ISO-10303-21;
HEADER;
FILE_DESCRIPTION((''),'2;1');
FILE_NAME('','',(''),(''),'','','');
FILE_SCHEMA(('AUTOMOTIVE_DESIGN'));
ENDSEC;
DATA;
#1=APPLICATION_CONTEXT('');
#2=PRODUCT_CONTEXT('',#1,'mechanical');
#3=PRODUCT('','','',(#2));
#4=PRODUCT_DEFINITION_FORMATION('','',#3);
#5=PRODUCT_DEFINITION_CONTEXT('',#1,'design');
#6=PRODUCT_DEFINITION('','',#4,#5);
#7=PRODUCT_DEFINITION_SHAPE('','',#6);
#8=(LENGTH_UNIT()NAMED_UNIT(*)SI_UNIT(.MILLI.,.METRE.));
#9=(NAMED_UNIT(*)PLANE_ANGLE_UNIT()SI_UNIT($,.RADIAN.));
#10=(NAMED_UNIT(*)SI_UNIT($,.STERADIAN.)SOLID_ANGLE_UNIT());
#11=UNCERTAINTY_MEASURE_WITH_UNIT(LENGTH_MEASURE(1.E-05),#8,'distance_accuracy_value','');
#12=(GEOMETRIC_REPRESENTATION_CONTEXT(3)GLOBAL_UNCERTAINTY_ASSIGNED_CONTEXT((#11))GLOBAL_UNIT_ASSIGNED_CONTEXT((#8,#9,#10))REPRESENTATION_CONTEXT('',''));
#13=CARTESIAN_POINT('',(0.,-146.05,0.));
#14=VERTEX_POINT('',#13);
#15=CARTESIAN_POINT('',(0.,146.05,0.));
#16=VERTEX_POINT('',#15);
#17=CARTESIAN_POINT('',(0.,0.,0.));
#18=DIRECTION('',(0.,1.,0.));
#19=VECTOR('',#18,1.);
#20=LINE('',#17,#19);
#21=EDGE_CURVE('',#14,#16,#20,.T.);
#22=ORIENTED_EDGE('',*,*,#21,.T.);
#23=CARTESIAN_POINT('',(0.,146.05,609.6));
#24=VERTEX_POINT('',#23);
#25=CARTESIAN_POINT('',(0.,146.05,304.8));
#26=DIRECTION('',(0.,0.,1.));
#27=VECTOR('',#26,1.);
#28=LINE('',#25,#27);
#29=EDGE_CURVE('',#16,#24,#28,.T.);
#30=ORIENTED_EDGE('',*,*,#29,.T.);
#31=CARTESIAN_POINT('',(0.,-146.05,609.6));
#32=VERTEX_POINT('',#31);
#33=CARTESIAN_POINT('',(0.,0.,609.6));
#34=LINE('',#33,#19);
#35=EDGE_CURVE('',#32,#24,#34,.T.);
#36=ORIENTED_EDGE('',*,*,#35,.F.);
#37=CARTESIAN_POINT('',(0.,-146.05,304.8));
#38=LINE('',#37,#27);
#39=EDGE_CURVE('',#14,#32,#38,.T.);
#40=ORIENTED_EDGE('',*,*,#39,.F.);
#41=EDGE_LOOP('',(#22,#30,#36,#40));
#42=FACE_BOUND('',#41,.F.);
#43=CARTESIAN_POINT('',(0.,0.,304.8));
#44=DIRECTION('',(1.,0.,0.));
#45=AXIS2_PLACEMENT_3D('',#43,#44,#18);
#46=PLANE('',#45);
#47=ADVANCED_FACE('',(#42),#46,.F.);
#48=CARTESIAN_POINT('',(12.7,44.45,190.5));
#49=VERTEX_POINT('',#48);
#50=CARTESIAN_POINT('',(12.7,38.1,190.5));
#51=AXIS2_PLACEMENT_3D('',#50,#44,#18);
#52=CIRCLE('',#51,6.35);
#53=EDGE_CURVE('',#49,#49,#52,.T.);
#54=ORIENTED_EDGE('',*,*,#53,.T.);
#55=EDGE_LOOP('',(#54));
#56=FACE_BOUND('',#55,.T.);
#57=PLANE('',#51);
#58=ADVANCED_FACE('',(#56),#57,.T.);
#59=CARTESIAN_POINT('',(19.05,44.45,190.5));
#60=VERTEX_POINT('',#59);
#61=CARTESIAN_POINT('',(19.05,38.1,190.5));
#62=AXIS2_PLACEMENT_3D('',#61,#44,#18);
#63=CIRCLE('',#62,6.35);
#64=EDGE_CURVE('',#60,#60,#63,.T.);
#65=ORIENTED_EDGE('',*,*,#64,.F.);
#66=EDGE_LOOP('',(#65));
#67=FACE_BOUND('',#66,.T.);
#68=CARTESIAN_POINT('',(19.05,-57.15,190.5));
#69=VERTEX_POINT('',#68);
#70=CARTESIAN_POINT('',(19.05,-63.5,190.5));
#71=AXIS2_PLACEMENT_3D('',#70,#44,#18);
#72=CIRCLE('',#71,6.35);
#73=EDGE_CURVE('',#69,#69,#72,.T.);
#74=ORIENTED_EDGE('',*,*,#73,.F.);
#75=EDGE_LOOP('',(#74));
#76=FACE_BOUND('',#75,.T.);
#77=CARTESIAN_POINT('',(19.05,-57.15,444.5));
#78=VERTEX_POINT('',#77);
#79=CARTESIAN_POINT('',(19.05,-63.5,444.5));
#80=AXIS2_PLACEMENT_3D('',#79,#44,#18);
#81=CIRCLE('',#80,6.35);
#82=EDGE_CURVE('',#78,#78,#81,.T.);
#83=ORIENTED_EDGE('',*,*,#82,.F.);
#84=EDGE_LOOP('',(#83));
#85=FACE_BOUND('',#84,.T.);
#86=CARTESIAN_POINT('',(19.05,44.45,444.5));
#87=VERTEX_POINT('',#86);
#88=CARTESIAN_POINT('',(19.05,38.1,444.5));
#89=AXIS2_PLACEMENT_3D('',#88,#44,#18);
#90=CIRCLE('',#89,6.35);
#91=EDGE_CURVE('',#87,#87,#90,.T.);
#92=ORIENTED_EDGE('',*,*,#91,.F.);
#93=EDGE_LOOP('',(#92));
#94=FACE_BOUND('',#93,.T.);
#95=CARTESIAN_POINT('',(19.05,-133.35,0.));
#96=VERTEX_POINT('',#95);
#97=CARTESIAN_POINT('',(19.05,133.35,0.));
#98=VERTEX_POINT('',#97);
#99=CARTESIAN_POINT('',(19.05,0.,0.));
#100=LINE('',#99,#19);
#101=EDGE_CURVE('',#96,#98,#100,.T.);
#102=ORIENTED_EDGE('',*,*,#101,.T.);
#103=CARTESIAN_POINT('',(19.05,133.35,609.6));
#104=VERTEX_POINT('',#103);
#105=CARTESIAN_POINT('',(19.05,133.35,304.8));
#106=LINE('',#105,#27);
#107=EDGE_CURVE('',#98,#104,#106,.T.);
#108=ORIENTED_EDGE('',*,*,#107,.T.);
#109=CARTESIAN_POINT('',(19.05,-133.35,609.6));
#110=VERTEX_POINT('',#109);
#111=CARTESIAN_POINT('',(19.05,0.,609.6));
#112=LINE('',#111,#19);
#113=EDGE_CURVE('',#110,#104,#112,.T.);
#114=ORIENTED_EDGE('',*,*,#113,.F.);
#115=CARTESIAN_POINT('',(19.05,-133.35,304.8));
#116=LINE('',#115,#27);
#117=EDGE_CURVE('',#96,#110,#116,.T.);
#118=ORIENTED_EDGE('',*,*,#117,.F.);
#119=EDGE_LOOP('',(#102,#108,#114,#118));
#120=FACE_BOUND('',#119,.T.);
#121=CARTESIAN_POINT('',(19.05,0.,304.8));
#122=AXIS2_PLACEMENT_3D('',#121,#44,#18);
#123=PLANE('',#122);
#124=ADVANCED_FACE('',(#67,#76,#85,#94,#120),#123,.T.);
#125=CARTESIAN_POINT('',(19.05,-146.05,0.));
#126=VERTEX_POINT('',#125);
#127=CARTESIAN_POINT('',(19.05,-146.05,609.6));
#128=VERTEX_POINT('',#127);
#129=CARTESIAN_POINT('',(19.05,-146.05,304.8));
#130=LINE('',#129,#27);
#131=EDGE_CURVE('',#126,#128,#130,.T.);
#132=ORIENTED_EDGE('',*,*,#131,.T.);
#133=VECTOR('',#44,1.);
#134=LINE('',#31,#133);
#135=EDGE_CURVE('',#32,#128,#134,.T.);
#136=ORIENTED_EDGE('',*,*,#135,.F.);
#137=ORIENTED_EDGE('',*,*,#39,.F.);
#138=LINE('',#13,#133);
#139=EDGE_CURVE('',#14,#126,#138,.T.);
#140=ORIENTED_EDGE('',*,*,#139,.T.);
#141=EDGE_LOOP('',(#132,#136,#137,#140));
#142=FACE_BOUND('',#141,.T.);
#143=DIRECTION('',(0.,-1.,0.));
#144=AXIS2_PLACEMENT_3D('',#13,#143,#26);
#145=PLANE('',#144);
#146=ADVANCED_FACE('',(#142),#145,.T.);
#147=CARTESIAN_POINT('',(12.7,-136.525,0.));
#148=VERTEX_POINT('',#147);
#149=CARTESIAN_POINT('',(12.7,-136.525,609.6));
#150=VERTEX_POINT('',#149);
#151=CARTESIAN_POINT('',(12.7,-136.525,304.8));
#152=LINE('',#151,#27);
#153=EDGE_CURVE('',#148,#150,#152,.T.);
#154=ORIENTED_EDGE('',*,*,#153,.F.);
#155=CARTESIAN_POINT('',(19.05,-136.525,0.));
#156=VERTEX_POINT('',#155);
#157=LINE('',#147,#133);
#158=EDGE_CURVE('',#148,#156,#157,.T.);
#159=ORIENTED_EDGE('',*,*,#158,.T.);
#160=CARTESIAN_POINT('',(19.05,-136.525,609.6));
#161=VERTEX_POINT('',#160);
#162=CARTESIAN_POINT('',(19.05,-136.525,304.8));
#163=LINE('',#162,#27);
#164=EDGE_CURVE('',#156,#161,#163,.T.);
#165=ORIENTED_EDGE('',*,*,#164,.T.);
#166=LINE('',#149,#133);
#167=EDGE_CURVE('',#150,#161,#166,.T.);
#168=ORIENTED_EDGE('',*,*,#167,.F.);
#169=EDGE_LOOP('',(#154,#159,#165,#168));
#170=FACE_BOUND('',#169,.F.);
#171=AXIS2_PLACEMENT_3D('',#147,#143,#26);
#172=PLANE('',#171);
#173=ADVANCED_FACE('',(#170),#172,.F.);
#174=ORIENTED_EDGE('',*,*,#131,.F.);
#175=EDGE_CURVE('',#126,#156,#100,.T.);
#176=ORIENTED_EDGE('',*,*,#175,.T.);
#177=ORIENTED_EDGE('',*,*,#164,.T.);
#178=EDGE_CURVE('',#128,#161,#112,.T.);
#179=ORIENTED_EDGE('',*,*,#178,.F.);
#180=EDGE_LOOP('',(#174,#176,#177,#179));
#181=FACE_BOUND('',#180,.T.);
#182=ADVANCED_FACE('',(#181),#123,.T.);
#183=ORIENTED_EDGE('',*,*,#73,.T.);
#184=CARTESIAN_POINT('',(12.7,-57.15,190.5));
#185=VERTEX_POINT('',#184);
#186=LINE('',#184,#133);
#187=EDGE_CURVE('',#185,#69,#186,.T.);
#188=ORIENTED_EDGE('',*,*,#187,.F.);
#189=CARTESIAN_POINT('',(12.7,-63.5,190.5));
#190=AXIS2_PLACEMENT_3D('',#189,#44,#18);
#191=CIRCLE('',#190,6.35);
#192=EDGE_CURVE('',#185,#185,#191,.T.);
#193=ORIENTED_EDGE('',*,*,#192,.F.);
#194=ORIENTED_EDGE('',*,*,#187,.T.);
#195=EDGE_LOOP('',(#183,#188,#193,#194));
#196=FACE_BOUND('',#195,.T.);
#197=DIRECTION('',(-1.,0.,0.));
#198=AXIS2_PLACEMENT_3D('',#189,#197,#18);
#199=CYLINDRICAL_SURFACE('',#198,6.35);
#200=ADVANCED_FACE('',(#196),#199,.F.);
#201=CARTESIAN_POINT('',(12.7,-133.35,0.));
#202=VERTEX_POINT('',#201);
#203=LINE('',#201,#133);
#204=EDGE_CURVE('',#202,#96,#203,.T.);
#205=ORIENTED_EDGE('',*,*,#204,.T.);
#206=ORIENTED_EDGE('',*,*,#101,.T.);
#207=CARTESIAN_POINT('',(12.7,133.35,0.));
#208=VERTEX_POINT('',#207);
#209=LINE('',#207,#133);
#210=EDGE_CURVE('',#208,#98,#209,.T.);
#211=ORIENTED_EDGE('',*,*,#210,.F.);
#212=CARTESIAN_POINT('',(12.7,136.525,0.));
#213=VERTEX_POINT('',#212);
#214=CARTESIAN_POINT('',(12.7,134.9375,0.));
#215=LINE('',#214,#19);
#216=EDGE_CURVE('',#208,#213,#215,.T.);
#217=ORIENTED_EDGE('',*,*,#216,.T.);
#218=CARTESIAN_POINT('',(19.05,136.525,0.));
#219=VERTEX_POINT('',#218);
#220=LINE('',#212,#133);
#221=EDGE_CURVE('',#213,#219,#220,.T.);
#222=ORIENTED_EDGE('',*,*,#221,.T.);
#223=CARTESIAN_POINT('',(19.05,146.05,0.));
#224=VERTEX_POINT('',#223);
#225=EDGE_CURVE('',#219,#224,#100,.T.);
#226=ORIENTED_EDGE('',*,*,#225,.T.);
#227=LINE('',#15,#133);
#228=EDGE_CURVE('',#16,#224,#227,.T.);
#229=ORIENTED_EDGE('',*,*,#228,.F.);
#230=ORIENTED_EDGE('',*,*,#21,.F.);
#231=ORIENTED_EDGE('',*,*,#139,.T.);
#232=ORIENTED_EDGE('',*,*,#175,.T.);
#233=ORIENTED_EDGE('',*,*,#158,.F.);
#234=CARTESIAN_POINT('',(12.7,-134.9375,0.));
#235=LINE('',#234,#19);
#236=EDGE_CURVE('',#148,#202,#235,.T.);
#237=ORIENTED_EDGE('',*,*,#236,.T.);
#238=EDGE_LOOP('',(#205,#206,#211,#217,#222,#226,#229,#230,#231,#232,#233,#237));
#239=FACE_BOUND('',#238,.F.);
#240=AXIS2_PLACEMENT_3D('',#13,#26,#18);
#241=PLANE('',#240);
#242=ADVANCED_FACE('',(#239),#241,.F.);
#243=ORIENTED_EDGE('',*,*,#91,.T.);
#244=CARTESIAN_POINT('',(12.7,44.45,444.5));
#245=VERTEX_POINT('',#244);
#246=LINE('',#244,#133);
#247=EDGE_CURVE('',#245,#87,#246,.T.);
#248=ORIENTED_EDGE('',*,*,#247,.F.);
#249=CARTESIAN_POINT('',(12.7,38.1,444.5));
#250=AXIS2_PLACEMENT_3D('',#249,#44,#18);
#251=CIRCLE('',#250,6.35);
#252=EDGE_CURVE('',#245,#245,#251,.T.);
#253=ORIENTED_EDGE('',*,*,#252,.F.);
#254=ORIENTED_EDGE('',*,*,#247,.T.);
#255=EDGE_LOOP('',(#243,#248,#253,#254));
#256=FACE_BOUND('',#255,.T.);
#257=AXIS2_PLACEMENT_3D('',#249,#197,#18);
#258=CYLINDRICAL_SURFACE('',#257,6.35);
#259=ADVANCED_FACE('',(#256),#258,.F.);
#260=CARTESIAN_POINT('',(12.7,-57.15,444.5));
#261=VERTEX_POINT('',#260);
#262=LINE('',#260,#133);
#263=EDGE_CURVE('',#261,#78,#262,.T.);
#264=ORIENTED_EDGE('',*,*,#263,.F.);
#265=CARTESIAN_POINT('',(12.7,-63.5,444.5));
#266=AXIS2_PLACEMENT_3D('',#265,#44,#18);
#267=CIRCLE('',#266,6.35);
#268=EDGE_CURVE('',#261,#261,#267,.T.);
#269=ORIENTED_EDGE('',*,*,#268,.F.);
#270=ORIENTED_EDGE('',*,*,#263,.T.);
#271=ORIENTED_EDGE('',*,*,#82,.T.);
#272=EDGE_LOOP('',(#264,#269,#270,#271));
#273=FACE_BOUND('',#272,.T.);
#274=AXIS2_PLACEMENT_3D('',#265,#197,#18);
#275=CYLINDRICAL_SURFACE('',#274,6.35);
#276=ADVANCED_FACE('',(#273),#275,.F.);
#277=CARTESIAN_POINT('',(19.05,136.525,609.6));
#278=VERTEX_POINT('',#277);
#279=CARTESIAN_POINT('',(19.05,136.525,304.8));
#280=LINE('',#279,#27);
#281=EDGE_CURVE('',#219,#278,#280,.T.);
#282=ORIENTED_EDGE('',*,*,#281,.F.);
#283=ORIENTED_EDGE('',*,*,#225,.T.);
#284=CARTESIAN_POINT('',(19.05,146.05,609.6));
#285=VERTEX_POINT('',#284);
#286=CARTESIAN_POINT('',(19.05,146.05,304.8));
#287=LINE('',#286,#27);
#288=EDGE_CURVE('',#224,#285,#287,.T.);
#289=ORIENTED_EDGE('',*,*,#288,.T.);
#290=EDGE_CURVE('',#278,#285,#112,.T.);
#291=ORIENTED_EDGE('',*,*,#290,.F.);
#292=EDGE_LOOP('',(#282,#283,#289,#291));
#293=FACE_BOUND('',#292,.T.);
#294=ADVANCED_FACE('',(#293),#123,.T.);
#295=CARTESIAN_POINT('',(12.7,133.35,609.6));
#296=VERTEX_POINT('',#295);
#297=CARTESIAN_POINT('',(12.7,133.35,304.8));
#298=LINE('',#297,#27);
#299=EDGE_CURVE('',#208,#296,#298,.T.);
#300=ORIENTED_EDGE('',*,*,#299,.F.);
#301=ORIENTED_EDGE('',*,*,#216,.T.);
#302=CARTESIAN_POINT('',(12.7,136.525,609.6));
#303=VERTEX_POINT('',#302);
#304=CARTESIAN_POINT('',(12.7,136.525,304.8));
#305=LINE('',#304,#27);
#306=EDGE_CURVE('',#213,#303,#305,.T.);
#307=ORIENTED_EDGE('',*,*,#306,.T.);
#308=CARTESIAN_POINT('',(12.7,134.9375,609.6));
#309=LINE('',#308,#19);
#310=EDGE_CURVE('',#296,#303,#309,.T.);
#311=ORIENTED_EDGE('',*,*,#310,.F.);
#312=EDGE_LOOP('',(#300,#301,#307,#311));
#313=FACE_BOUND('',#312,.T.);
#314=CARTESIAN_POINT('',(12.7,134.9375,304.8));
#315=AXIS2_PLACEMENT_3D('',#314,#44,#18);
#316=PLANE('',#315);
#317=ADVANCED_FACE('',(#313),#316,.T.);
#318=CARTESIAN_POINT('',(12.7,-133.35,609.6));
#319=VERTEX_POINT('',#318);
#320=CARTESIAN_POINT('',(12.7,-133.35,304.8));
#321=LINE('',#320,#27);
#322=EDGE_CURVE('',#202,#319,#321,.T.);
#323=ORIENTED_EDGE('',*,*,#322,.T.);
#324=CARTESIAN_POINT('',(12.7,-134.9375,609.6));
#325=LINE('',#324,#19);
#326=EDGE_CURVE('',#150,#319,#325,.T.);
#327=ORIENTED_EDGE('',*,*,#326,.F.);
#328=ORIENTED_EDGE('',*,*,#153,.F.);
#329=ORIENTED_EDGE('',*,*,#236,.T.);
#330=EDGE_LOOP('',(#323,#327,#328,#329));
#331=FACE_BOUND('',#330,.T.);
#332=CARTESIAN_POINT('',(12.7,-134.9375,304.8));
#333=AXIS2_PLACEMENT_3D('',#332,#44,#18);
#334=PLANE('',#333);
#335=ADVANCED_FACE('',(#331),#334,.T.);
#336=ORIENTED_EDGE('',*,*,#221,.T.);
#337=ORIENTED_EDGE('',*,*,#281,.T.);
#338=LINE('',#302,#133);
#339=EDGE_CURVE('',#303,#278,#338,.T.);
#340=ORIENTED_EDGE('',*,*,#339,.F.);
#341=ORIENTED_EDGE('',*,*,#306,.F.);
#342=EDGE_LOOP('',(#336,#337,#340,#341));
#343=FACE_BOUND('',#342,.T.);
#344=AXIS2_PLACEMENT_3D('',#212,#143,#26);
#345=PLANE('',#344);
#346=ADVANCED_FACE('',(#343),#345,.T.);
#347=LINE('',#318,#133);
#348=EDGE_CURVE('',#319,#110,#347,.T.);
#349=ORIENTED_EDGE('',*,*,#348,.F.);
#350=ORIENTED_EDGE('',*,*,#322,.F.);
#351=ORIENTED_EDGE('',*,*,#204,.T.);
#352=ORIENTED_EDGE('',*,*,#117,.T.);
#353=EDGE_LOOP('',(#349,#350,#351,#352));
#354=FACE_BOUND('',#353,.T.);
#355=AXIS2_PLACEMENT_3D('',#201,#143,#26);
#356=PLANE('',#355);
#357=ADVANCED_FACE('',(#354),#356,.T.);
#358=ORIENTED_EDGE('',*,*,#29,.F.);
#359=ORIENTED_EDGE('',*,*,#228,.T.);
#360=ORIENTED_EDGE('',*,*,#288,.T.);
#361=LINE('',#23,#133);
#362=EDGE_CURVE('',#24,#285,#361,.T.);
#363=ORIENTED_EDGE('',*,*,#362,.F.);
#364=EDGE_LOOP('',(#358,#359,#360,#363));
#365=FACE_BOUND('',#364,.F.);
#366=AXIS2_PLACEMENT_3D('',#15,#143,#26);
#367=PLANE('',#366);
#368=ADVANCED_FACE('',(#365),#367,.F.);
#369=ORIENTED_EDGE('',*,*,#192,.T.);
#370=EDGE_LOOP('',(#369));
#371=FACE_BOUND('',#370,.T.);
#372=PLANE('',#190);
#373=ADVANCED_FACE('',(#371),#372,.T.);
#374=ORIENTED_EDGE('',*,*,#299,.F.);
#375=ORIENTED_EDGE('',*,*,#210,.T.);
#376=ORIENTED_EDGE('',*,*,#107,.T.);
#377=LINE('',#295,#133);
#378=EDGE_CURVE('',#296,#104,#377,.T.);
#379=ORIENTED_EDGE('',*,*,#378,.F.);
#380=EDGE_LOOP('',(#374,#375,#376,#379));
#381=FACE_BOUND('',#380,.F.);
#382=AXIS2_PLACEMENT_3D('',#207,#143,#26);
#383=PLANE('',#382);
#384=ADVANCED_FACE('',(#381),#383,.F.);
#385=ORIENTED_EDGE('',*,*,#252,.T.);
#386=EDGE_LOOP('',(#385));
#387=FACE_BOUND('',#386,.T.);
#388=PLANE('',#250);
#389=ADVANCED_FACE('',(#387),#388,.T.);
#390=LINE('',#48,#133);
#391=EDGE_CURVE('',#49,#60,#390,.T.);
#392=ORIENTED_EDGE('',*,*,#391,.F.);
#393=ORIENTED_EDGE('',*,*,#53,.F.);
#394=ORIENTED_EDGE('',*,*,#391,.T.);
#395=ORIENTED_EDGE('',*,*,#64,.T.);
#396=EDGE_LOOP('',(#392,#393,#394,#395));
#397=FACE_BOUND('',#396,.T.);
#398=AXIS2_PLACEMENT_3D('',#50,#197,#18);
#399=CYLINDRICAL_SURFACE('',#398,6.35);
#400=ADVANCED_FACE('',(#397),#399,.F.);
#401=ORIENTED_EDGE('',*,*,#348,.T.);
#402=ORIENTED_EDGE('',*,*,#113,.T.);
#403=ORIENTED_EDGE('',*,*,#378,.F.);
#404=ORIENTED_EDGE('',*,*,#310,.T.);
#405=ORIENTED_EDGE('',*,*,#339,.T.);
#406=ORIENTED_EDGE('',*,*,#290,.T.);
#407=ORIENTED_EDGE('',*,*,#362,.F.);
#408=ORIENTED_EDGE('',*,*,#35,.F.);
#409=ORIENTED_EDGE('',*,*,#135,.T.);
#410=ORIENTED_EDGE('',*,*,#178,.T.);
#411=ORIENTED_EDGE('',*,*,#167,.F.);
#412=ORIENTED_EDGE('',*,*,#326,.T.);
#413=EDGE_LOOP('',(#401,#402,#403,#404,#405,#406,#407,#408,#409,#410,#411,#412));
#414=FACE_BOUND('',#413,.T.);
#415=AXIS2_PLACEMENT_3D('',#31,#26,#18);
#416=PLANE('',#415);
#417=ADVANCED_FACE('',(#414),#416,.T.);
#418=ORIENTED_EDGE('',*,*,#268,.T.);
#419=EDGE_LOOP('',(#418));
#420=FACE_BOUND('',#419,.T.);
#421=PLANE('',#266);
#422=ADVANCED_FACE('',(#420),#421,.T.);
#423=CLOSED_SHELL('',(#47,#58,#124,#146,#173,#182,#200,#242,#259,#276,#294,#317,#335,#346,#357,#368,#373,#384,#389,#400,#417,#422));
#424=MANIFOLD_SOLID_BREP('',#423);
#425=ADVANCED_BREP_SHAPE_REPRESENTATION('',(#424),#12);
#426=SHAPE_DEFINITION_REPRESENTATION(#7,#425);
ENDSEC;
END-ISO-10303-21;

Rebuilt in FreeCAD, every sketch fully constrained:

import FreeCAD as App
import Part
import Sketcher
Q = App.Units.Quantity


def add_polygon(sketch, points):
    """Adds a closed chain of lines whose ends are joined by coincident constraints."""
    first, n = sketch.GeometryCount, len(points)
    for a, b in zip(points, points[1:] + points[:1]):
        sketch.addGeometry(Part.LineSegment(App.Vector(*a, 0), App.Vector(*b, 0)), False)
    for i in range(n):
        sketch.addConstraint(Sketcher.Constraint("Coincident", first + i, 2, first + (i + 1) % n, 1))

doc = App.newDocument("Part")
body = doc.addObject("PartDesign::Body", "Body")

# Sketch on YZ plane
sketch1 = body.newObject("Sketcher::SketchObject", "Sketch")
sketch1.AttachmentSupport = (doc.getObject("YZ_Plane"), [""])
sketch1.MapMode = "FlatFace"
add_polygon(sketch1, [(-146, 610), (-146, 0), (146, 0), (146, 610)])  # lines 0-3
sketch1.addConstraint([
    Sketcher.Constraint("Vertical", 0),
    Sketcher.Constraint("Horizontal", 1),
    Sketcher.Constraint("Vertical", 2),
    Sketcher.Constraint("Horizontal", 3),
    Sketcher.Constraint("Symmetric", 0, 2, 1, 2, -1, 1),
    Sketcher.Constraint("DistanceY", 0, 2, 0, 1, Q("24 in")),
    Sketcher.Constraint("DistanceX", 1, 1, 1, 2, Q("11.5 in")),
])
pad1 = body.newObject("PartDesign::Pad", "Pad")
pad1.Profile = sketch1
pad1.Length = Q("0.75 in")

# Sketch on YZ plane
sketch2 = body.newObject("Sketcher::SketchObject", "Sketch001")
sketch2.AttachmentSupport = (doc.getObject("YZ_Plane"), [""])
sketch2.MapMode = "FlatFace"
sketch2.AttachmentOffset = App.Placement(App.Vector(0, 0, 0.5 * 25.4), App.Rotation())
add_polygon(sketch2, [(-136.5, 609.6), (-136.5, 0), (-133.3, 0), (-133.3, 609.6)])  # lines 0-3
sketch2.addConstraint([
    Sketcher.Constraint("Vertical", 0),
    Sketcher.Constraint("Horizontal", 1),
    Sketcher.Constraint("Vertical", 2),
    Sketcher.Constraint("Horizontal", 3),
    Sketcher.Constraint("PointOnObject", 0, 2, -1),
    Sketcher.Constraint("DistanceY", 0, 2, 0, 1, Q("24 in")),
    Sketcher.Constraint("DistanceX", 1, 1, 1, 2, Q("0.125 in")),
    Sketcher.Constraint("DistanceX", 1, 2, -1, 1, Q("5.25 in")),
])
pocket1 = body.newObject("PartDesign::Pocket", "Pocket")
pocket1.Profile = sketch2
pocket1.Length = Q("0.25 in")
pocket1.Reversed = True

# Sketch on YZ plane
sketch3 = body.newObject("Sketcher::SketchObject", "Sketch002")
sketch3.AttachmentSupport = (doc.getObject("YZ_Plane"), [""])
sketch3.MapMode = "FlatFace"
sketch3.AttachmentOffset = App.Placement(App.Vector(0, 0, 0.5 * 25.4), App.Rotation())
add_polygon(sketch3, [(133.3, 609.6), (133.3, 0), (136.5, 0), (136.5, 609.6)])  # lines 0-3
sketch3.addConstraint([
    Sketcher.Constraint("Vertical", 0),
    Sketcher.Constraint("Horizontal", 1),
    Sketcher.Constraint("Vertical", 2),
    Sketcher.Constraint("Horizontal", 3),
    Sketcher.Constraint("PointOnObject", 0, 2, -1),
    Sketcher.Constraint("DistanceY", 0, 2, 0, 1, Q("24 in")),
    Sketcher.Constraint("DistanceX", 1, 1, 1, 2, Q("0.125 in")),
    Sketcher.Constraint("DistanceX", -1, 1, 0, 2, Q("5.25 in")),
])
pocket2 = body.newObject("PartDesign::Pocket", "Pocket001")
pocket2.Profile = sketch3
pocket2.Length = Q("0.25 in")
pocket2.Reversed = True

# Sketch on YZ plane
sketch4 = body.newObject("Sketcher::SketchObject", "Sketch003")
sketch4.AttachmentSupport = (doc.getObject("YZ_Plane"), [""])
sketch4.MapMode = "FlatFace"
sketch4.AttachmentOffset = App.Placement(App.Vector(0, 0, 0.5 * 25.4), App.Rotation())
sketch4.addGeometry(Part.Circle(App.Vector(-64, 444, 0), App.Vector(0, 0, 1), 6), False)
sketch4.addConstraint([
    Sketcher.Constraint("Diameter", 0, Q("0.5 in")),
    Sketcher.Constraint("DistanceX", 0, 3, -1, 1, Q("2.5 in")),
    Sketcher.Constraint("DistanceY", -1, 1, 0, 3, Q("17.5 in")),
])
pocket3 = body.newObject("PartDesign::Pocket", "Pocket002")
pocket3.Profile = sketch4
pocket3.Length = Q("0.25 in")
pocket3.Reversed = True

# Sketch on YZ plane
sketch5 = body.newObject("Sketcher::SketchObject", "Sketch004")
sketch5.AttachmentSupport = (doc.getObject("YZ_Plane"), [""])
sketch5.MapMode = "FlatFace"
sketch5.AttachmentOffset = App.Placement(App.Vector(0, 0, 0.5 * 25.4), App.Rotation())
sketch5.addGeometry(Part.Circle(App.Vector(38, 444, 0), App.Vector(0, 0, 1), 6), False)
sketch5.addConstraint([
    Sketcher.Constraint("Diameter", 0, Q("0.5 in")),
    Sketcher.Constraint("DistanceX", -1, 1, 0, 3, Q("1.5 in")),
    Sketcher.Constraint("DistanceY", -1, 1, 0, 3, Q("17.5 in")),
])
pocket4 = body.newObject("PartDesign::Pocket", "Pocket003")
pocket4.Profile = sketch5
pocket4.Length = Q("0.25 in")
pocket4.Reversed = True

# Sketch on YZ plane
sketch6 = body.newObject("Sketcher::SketchObject", "Sketch005")
sketch6.AttachmentSupport = (doc.getObject("YZ_Plane"), [""])
sketch6.MapMode = "FlatFace"
sketch6.AttachmentOffset = App.Placement(App.Vector(0, 0, 0.5 * 25.4), App.Rotation())
sketch6.addGeometry(Part.Circle(App.Vector(38, 190, 0), App.Vector(0, 0, 1), 6), False)
sketch6.addConstraint([
    Sketcher.Constraint("Diameter", 0, Q("0.5 in")),
    Sketcher.Constraint("DistanceX", -1, 1, 0, 3, Q("1.5 in")),
    Sketcher.Constraint("DistanceY", -1, 1, 0, 3, Q("7.5 in")),
])
pocket5 = body.newObject("PartDesign::Pocket", "Pocket004")
pocket5.Profile = sketch6
pocket5.Length = Q("0.25 in")
pocket5.Reversed = True

# Sketch on YZ plane
sketch7 = body.newObject("Sketcher::SketchObject", "Sketch006")
sketch7.AttachmentSupport = (doc.getObject("YZ_Plane"), [""])
sketch7.MapMode = "FlatFace"
sketch7.AttachmentOffset = App.Placement(App.Vector(0, 0, 0.5 * 25.4), App.Rotation())
sketch7.addGeometry(Part.Circle(App.Vector(-64, 190, 0), App.Vector(0, 0, 1), 6), False)
sketch7.addConstraint([
    Sketcher.Constraint("Diameter", 0, Q("0.5 in")),
    Sketcher.Constraint("DistanceX", 0, 3, -1, 1, Q("2.5 in")),
    Sketcher.Constraint("DistanceY", -1, 1, 0, 3, Q("7.5 in")),
])
pocket6 = body.newObject("PartDesign::Pocket", "Pocket005")
pocket6.Profile = sketch7
pocket6.Length = Q("0.25 in")
pocket6.Reversed = True

doc.recompute()
